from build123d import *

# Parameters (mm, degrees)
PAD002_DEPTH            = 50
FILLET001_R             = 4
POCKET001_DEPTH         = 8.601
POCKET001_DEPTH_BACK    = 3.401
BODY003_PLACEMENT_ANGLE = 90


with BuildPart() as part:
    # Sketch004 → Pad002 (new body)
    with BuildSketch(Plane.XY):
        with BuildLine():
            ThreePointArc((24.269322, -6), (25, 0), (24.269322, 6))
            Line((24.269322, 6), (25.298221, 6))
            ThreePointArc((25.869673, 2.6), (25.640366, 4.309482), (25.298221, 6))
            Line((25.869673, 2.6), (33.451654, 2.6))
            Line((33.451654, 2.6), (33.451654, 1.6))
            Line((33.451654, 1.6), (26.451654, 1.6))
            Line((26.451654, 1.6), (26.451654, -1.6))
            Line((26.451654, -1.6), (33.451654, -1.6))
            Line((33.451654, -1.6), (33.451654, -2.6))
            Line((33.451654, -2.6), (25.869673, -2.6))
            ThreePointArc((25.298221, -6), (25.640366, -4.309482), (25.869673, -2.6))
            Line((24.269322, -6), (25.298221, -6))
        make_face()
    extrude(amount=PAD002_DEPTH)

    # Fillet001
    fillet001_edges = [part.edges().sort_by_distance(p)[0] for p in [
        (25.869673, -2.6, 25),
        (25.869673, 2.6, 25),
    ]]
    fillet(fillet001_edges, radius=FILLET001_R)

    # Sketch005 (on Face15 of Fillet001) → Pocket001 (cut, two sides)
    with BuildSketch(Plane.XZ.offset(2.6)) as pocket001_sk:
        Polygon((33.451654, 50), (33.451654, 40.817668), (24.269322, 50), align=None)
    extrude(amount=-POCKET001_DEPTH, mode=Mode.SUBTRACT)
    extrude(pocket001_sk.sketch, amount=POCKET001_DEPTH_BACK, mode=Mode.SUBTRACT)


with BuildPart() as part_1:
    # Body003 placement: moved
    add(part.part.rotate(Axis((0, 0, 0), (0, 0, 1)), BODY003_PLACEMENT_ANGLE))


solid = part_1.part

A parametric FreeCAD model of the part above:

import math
import FreeCAD as App
import Part
import Sketcher
from FreeCAD import Vector
Q = App.Units.Quantity


def edges_at(feature, points):
    """Names of the edges that pass closest to the given points."""
    edges = feature.Shape.Edges
    near = lambda p: min(range(len(edges)), key=lambda i: edges[i].distToShape(Part.Vertex(*p))[0])
    return sorted({f"Edge{near(p) + 1}" for p in points})

doc = App.newDocument("Part")
body = doc.addObject("PartDesign::Body", "Body")

sketch1 = doc.addObject("Sketcher::SketchObject", "Sketch")
body.addObject(sketch1)
sketch1.AttachmentSupport = (doc.XY_Plane, [""])
sketch1.MapMode = "FlatFace"
sketch1.addGeometry([
    Part.ArcOfCircle(Part.Circle(Vector(0.000007, 0, 0), Vector(0, 0, 1), 24.999993), math.radians(-13.886544), math.radians(13.886544)),
    Part.LineSegment(Vector(24.269322, -6, 0), Vector(25.298221, -6, 0)),
    Part.ArcOfCircle(Part.Circle(Vector(0.000175, -0.00003, 0), Vector(0, 0, 1), 25.999823), math.radians(-13.342388), math.radians(-5.739143)),
    Part.LineSegment(Vector(25.869673, -2.6, 0), Vector(33.451654, -2.6, 0)),
    Part.LineSegment(Vector(33.451654, -2.6, 0), Vector(33.451654, -1.6, 0)),
    Part.LineSegment(Vector(33.451654, -1.6, 0), Vector(26.451654, -1.6, 0)),
    Part.LineSegment(Vector(26.451654, -1.6, 0), Vector(26.451654, 1.6, 0)),
    Part.LineSegment(Vector(26.451654, 1.6, 0), Vector(33.451654, 1.6, 0)),
    Part.LineSegment(Vector(33.451654, 1.6, 0), Vector(33.451654, 2.6, 0)),
    Part.LineSegment(Vector(33.451654, 2.6, 0), Vector(25.869673, 2.6, 0)),
    Part.ArcOfCircle(Part.Circle(Vector(0.000175, 0.00003, 0), Vector(0, 0, 1), 25.999823), math.radians(5.739143), math.radians(13.342388)),
    Part.LineSegment(Vector(25.298221, 6, 0), Vector(24.269322, 6, 0)),
], False)
sketch1.addConstraint([
    Sketcher.Constraint("Coincident", 0, 1, 1, 1),
    Sketcher.Constraint("Coincident", 1, 2, 2, 1),
    Sketcher.Constraint("Coincident", 2, 2, 3, 1),
    Sketcher.Constraint("Coincident", 3, 2, 4, 1),
    Sketcher.Constraint("Coincident", 4, 2, 5, 1),
    Sketcher.Constraint("Coincident", 5, 2, 6, 1),
    Sketcher.Constraint("Coincident", 6, 2, 7, 1),
    Sketcher.Constraint("Coincident", 7, 2, 8, 1),
    Sketcher.Constraint("Coincident", 8, 2, 9, 1),
    Sketcher.Constraint("Coincident", 9, 2, 10, 1),
    Sketcher.Constraint("Coincident", 10, 2, 11, 1),
    Sketcher.Constraint("Coincident", 11, 2, 0, 2),
    Sketcher.Constraint("Horizontal", 1),
    Sketcher.Constraint("Horizontal", 3),
    Sketcher.Constraint("Vertical", 4),
    Sketcher.Constraint("Horizontal", 5),
    Sketcher.Constraint("Vertical", 6),
    Sketcher.Constraint("Horizontal", 7),
    Sketcher.Constraint("Vertical", 8),
    Sketcher.Constraint("Horizontal", 9),
    Sketcher.Constraint("Horizontal", 11),
    Sketcher.Constraint("Coincident", 0, 3, -1, 1),
    Sketcher.Constraint("Equal", 2, 10),
    Sketcher.Constraint("Symmetric", 2, 3, 10, 3, -1),
    Sketcher.Constraint("Symmetric", 4, 2, 7, 2, -1),
    Sketcher.Constraint("Vertical", 2, 2, 9, 2),
    Sketcher.Constraint("Vertical", 1, 2, 10, 2),
    Sketcher.Constraint("DistanceX", 5, 2, 5, 1, Q("7 mm")),
    Sketcher.Constraint("DistanceY", 4, 1, 4, 2, Q("1 mm")),
    Sketcher.Constraint("DistanceY", 6, 1, 6, 2, Q("3.2 mm")),
    Sketcher.Constraint("DistanceY", 0, 1, -1, 1, Q("6 mm")),
    Sketcher.Constraint("DistanceX", 1, 1, 1, 2, Q("1.028899 mm")),
    Sketcher.Constraint("Radius", 0, Q("24.999993 mm")),
    Sketcher.Constraint("Radius", 2, Q("25.999823 mm")),
    Sketcher.Constraint("DistanceX", 3, 1, 3, 2, Q("7.581981 mm")),
    Sketcher.Constraint("DistanceX", 2, 3, 2, 2, Q("25.869498 mm")),
])
pad1 = doc.addObject("PartDesign::Pad", "Pad")
body.addObject(pad1)
pad1.Profile = sketch1
pad1.Length = 50
doc.recompute()

fillet = doc.addObject("PartDesign::Fillet", "Fillet")
body.addObject(fillet)
fillet.Base = (pad1, edges_at(pad1, [(25.87, -2.6, 25), (25.87, 2.6, 25)]))
fillet.Radius = 4

sketch2 = doc.addObject("Sketcher::SketchObject", "Sketch001")
body.addObject(sketch2)
sketch2.AttachmentSupport = (doc.XZ_Plane, [""])
sketch2.MapMode = "FlatFace"
sketch2.AttachmentOffset = App.Placement(Vector(0, 0, 2.6), App.Rotation())
sketch2.addGeometry([
    Part.LineSegment(Vector(33.451654, 40.817668, 0), Vector(33.451654, 50, 0)),
    Part.LineSegment(Vector(33.451654, 50, 0), Vector(24.269322, 50, 0)),
    Part.LineSegment(Vector(24.269322, 50, 0), Vector(33.451654, 40.817668, 0)),
], False)
sketch2.addConstraint([
    Sketcher.Constraint("Coincident", 0, 2, 1, 1),
    Sketcher.Constraint("Coincident", 1, 2, 2, 1),
    Sketcher.Constraint("Coincident", 2, 2, 0, 1),
    Sketcher.Constraint("Vertical", 0),
    Sketcher.Constraint("Horizontal", 1),
    Sketcher.Constraint("Equal", 1, 0),
    Sketcher.Constraint("DistanceY", -1, 1, 0, 2, Q("50 mm")),
    Sketcher.Constraint("DistanceX", 1, 2, 1, 1, Q("9.182332 mm")),
    Sketcher.Constraint("DistanceX", -1, 1, 1, 2, Q("24.269322 mm")),
])
pocket1 = doc.addObject("PartDesign::Pocket", "Pocket")
body.addObject(pocket1)
pocket1.Profile = sketch2
pocket1.Type = "ThroughAll"
pocket1.Midplane = True
body2 = doc.addObject("PartDesign::Body", "Body001")
doc.recompute()

body.Placement = App.Placement(Vector(0, 0, 0), App.Rotation(Vector(0, 0, 1), 90))
boolean = doc.addObject("PartDesign::Boolean", "Boolean")
body2.addObject(boolean)
boolean.Type = "Fuse"
boolean.addObjects([body])

doc.recompute()
